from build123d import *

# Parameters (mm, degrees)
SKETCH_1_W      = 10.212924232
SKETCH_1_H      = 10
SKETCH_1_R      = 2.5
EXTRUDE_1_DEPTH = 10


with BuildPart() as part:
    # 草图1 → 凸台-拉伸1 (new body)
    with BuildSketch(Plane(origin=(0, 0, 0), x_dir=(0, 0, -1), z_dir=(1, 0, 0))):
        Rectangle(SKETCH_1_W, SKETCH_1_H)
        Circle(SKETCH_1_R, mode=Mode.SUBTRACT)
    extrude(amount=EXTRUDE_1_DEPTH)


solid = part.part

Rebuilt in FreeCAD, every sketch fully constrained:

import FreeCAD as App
import Part
import Sketcher

doc = App.newDocument("Part")
params = doc.addObject("Spreadsheet::Sheet", "Params")
for row, (alias, value) in enumerate([
    ("sketch1_diameter", "5 mm"),
    ("sketch1_width", "10 mm"),
    ("pad1_length", "10 mm"),
], start=1):
    params.set(f"A{row}", alias)
    params.set(f"B{row}", "=" + value)
    params.setAlias(f"B{row}", alias)

body = doc.addObject("PartDesign::Body", "Body")

# Sketch on YZ plane
sketch1 = body.newObject("Sketcher::SketchObject", "Sketch")
sketch1.AttachmentSupport = (doc.getObject("YZ_Plane"), [""])
sketch1.MapMode = "FlatFace"
sketch1.addGeometry(Part.LineSegment(App.Vector(5, 5.1, 0), App.Vector(-5, 5.1, 0)), False)
sketch1.addGeometry(Part.LineSegment(App.Vector(-5, 5.1, 0), App.Vector(-5, -5.1, 0)), False)
sketch1.addGeometry(Part.LineSegment(App.Vector(-5, -5.1, 0), App.Vector(5, -5.1, 0)), False)
sketch1.addGeometry(Part.LineSegment(App.Vector(5, -5.1, 0), App.Vector(5, 5.1, 0)), False)
sketch1.addGeometry(Part.Circle(App.Vector(0, 0, 0), App.Vector(0, 0, 1), 2.5), False)
sketch1.addConstraint(Sketcher.Constraint("Coincident", 0, 2, 1, 1))
sketch1.addConstraint(Sketcher.Constraint("Coincident", 1, 2, 2, 1))
sketch1.addConstraint(Sketcher.Constraint("Coincident", 2, 2, 3, 1))
sketch1.addConstraint(Sketcher.Constraint("Coincident", 3, 2, 0, 1))
sketch1.addConstraint(Sketcher.Constraint("Horizontal", 0))
sketch1.addConstraint(Sketcher.Constraint("Vertical", 1))
sketch1.addConstraint(Sketcher.Constraint("Horizontal", 2))
sketch1.addConstraint(Sketcher.Constraint("Vertical", 3))
sketch1.addConstraint(Sketcher.Constraint("Coincident", 4, 3, -1, 1))
sketch1.addConstraint(Sketcher.Constraint("Symmetric", 0, 2, 2, 2, -1, 1))
sketch1.addConstraint(Sketcher.Constraint("Diameter", 4, 5.0))
sketch1.addConstraint(Sketcher.Constraint("DistanceX", 0, 2, 0, 1, 10.0))
sketch1.addConstraint(Sketcher.Constraint("DistanceY", 1, 2, 1, 1, 10.212924))
sketch1.setExpression("Constraints[10]", "Params.sketch1_diameter")
sketch1.setExpression("Constraints[11]", "Params.sketch1_width")
pad1 = body.newObject("PartDesign::Pad", "Pad")
pad1.Profile = sketch1
pad1.setExpression("Length", "Params.pad1_length")

doc.recompute()
